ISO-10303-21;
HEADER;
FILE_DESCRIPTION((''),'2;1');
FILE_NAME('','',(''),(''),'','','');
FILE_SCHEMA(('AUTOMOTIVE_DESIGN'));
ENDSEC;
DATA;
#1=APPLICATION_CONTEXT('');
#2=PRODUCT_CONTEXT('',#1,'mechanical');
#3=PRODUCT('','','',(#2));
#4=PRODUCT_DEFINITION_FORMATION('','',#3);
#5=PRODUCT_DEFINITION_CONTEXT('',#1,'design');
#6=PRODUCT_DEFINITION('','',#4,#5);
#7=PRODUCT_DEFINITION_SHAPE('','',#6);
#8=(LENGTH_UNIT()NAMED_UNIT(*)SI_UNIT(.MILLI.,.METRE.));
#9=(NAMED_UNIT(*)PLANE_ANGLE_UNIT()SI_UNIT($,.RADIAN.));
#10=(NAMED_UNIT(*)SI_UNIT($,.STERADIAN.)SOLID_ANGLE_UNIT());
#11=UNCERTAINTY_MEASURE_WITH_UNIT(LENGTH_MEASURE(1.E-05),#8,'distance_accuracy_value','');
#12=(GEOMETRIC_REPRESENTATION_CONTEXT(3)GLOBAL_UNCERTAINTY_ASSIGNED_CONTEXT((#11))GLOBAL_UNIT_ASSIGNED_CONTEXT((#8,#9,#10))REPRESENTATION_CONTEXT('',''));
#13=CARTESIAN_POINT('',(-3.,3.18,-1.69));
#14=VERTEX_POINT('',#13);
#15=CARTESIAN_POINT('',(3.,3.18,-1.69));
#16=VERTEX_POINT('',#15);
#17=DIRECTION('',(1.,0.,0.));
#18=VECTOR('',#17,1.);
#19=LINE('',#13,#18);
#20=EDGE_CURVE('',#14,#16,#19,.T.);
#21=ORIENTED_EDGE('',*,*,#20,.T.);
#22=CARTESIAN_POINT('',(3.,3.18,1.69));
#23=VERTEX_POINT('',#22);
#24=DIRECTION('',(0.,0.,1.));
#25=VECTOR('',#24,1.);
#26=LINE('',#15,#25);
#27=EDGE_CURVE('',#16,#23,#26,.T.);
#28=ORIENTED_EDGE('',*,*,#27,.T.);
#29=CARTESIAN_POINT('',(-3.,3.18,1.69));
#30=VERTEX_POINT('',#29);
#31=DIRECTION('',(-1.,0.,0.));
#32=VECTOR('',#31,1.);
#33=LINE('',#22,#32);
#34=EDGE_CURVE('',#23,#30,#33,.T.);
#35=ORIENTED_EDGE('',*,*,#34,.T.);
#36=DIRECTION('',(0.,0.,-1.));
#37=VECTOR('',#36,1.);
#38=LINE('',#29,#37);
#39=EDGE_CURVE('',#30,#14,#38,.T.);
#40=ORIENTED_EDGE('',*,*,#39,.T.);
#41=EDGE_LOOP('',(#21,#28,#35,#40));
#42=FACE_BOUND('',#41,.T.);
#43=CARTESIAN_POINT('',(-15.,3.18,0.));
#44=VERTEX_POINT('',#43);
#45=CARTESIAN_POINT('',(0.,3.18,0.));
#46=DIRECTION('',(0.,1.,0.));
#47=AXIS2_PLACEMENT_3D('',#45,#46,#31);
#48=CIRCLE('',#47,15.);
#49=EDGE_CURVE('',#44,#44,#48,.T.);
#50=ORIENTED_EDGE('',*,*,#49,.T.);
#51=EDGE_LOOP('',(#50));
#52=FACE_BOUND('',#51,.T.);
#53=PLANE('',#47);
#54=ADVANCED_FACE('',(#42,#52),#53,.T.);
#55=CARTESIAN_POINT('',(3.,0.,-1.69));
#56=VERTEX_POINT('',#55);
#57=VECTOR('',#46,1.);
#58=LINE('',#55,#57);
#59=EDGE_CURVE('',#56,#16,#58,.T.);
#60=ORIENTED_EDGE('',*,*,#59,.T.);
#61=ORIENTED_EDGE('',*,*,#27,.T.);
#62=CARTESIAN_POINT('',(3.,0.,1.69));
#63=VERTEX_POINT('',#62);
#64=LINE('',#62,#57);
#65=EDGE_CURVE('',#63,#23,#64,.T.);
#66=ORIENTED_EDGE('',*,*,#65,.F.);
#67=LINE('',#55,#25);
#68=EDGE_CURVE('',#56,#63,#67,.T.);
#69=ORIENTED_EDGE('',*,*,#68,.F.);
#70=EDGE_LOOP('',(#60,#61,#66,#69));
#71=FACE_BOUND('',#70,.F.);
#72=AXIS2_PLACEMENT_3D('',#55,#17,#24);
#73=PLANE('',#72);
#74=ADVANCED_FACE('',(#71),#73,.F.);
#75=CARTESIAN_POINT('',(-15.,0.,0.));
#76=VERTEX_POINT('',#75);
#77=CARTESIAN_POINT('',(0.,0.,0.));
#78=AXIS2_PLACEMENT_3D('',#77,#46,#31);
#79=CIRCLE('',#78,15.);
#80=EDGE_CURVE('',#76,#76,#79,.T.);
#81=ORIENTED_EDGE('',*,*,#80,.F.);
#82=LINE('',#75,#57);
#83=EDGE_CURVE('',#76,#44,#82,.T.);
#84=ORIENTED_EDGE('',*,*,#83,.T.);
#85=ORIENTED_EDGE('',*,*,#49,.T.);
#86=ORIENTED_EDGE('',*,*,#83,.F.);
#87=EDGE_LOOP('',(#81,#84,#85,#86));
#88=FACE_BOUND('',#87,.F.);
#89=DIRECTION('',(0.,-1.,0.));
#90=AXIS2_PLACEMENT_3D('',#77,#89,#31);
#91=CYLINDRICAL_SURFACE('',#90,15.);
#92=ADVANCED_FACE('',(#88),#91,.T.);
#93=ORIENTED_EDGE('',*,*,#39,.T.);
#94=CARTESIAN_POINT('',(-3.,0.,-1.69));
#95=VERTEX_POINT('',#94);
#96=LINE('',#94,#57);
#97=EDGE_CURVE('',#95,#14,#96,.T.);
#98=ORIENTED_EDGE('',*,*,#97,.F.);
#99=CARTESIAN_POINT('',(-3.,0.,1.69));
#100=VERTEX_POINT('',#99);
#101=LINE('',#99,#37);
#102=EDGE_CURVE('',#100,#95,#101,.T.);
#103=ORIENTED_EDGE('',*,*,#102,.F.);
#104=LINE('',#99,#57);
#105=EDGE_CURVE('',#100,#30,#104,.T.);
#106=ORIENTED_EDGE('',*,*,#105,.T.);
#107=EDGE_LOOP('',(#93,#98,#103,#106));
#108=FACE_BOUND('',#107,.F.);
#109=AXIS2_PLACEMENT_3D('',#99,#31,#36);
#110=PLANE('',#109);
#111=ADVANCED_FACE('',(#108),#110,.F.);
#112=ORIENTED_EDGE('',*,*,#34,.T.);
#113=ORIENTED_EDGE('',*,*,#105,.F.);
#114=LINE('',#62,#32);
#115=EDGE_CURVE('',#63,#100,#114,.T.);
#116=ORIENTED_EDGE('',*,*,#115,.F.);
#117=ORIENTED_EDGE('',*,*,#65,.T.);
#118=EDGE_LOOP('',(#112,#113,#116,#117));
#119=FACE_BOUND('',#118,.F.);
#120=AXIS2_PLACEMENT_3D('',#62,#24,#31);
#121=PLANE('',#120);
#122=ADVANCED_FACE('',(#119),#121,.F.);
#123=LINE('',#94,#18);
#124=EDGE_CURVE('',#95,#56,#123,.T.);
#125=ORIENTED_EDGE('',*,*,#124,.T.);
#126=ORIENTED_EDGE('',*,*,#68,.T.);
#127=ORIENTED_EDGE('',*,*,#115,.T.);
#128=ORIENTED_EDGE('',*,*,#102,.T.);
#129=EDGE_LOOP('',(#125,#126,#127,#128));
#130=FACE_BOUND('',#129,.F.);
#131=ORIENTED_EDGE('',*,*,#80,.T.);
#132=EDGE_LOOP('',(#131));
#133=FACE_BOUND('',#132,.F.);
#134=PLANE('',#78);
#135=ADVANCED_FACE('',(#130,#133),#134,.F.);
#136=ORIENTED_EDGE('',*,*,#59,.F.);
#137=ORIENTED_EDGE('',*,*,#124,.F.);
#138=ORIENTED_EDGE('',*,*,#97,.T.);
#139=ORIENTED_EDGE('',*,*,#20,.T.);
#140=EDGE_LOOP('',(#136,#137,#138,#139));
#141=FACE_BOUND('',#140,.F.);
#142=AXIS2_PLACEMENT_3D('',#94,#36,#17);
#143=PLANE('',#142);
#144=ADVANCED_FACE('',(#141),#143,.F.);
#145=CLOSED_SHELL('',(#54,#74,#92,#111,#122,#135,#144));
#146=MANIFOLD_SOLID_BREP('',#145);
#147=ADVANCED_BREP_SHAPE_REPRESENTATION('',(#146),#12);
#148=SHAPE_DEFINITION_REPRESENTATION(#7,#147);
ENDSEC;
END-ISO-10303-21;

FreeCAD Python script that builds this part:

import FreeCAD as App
import Part
import Sketcher
from FreeCAD import Vector
Q = App.Units.Quantity


def add_polygon(sketch, points):
    """Adds a closed chain of lines whose ends are joined by coincident constraints."""
    first, n = sketch.GeometryCount, len(points)
    for a, b in zip(points, points[1:] + points[:1]):
        sketch.addGeometry(Part.LineSegment(App.Vector(*a, 0), App.Vector(*b, 0)), False)
    for i in range(n):
        sketch.addConstraint(Sketcher.Constraint("Coincident", first + i, 2, first + (i + 1) % n, 1))

doc = App.newDocument("Part")
body = doc.addObject("PartDesign::Body", "Body")

sketch1 = body.newObject("Sketcher::SketchObject", "Sketch")
sketch1.AttachmentSupport = (doc.getObject("XZ_Plane"), [""])
sketch1.MapMode = "FlatFace"
sketch1.addGeometry(Part.Circle(Vector(0, 0, 0), Vector(0, 0, 1), 15), False)
add_polygon(sketch1, [(3, -1.7), (3, 1.7), (-3, 1.7), (-3, -1.7)])
sketch1.addConstraint([
    Sketcher.Constraint("Vertical", 1),
    Sketcher.Constraint("Horizontal", 2),
    Sketcher.Constraint("Vertical", 3),
    Sketcher.Constraint("Horizontal", 4),
    Sketcher.Constraint("Coincident", 0, 3, -1, 1),
    Sketcher.Constraint("Symmetric", 1, 2, 3, 2, -1, 1),
    Sketcher.Constraint("Diameter", 0, Q("30 mm")),
    Sketcher.Constraint("DistanceX", 2, 2, 2, 1, Q("6 mm")),
    Sketcher.Constraint("DistanceY", 1, 1, 1, 2, Q("3.38 mm")),
])
pad1 = body.newObject("PartDesign::Pad", "Pad")
pad1.Profile = sketch1
pad1.Length = 3.18
pad1.Reversed = True

doc.recompute()
